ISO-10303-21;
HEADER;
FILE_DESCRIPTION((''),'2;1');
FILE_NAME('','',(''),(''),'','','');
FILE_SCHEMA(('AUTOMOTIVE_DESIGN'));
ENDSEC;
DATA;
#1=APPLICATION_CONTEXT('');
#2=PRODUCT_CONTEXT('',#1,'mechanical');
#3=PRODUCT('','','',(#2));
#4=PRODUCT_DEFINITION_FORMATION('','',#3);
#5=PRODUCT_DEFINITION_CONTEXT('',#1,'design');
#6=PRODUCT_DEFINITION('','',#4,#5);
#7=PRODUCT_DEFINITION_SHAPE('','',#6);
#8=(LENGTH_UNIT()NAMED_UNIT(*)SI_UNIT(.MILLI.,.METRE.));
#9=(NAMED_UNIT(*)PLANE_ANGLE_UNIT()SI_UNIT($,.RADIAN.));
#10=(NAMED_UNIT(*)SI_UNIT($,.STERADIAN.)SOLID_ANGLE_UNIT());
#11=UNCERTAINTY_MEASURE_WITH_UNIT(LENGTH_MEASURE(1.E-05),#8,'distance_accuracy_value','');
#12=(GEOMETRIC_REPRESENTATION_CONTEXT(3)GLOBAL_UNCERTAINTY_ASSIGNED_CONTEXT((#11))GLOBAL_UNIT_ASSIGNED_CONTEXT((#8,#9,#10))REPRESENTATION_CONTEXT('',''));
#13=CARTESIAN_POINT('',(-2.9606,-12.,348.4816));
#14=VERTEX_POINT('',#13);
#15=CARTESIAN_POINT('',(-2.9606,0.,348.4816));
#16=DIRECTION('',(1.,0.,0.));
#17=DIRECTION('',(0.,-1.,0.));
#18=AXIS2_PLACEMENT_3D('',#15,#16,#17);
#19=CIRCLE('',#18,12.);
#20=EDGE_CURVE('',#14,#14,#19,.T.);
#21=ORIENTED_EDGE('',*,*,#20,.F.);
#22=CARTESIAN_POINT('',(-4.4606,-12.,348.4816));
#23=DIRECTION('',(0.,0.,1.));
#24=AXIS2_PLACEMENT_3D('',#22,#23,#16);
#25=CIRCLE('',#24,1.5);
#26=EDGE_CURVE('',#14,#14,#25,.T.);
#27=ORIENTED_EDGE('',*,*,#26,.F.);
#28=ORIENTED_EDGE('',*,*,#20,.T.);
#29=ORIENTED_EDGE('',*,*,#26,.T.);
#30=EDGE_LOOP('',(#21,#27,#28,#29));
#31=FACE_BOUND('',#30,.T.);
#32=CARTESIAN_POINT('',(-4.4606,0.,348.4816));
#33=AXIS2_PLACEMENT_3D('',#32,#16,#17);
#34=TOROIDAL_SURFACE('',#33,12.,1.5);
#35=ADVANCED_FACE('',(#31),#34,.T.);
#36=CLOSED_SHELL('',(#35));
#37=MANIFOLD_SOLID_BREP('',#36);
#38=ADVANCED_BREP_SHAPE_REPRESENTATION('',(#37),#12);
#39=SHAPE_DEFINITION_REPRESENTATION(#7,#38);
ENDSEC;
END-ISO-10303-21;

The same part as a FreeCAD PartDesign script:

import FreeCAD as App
import Part
import Sketcher

doc = App.newDocument("Part")
body = doc.addObject("PartDesign::Body", "Body")

sketch1 = body.newObject("Sketcher::SketchObject", "Sketch")
sketch1.AttachmentSupport = (doc.getObject("XY_Plane"), [""])
sketch1.MapMode = "FlatFace"
sketch1.AttachmentOffset = App.Placement(App.Vector(0, 0, 348.4816), App.Rotation())
sketch1.addGeometry(Part.Circle(App.Vector(-4.4606, -12, 0), App.Vector(0, 0, 1), 1.5), False)
sketch1.addConstraint(Sketcher.Constraint("Diameter", 0, 3.0))
sketch1.addConstraint(Sketcher.Constraint("DistanceY", 0, 3, -1, 1, 12.0))
sketch1.addConstraint(Sketcher.Constraint("DistanceX", 0, 3, -1, 1, 4.4606))
revolution = body.newObject("PartDesign::Revolution", "Revolution")
revolution.Profile = sketch1
revolution.ReferenceAxis = (sketch1, ["H_Axis"])
revolution.Angle = 360

doc.recompute()
